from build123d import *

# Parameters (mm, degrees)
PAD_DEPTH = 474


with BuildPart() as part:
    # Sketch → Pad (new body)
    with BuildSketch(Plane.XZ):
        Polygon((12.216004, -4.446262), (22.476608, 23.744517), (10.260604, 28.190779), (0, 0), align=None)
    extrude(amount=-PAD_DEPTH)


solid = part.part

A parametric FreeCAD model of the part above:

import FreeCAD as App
import Part
import Sketcher

V = App.Vector
Q = App.Units.Quantity

doc = App.newDocument("Part")
body = doc.addObject("PartDesign::Body", "Body")

sketch1 = doc.addObject("Sketcher::SketchObject", "Sketch")
body.addObject(sketch1)
sketch1.AttachmentSupport = (doc.XZ_Plane, [""])
sketch1.MapMode = "FlatFace"
sketch1.addGeometry(Part.LineSegment(V(12, -4, 0), V(22, 24, 0)), False)
sketch1.addGeometry(Part.LineSegment(V(22, 24, 0), V(10, 28, 0)), False)
sketch1.addGeometry(Part.LineSegment(V(10, 28, 0), V(0, 0, 0)), False)
sketch1.addGeometry(Part.LineSegment(V(0, 0, 0), V(12, -4, 0)), False)
sketch1.addConstraint(Sketcher.Constraint("Coincident", 0, 2, 1, 1))
sketch1.addConstraint(Sketcher.Constraint("Coincident", 1, 2, 2, 1))
sketch1.addConstraint(Sketcher.Constraint("Coincident", 2, 2, 3, 1))
sketch1.addConstraint(Sketcher.Constraint("Coincident", 3, 2, 0, 1))
sketch1.addConstraint(Sketcher.Constraint("Coincident", 2, 2, -1, 1))
sketch1.addConstraint(Sketcher.Constraint("Perpendicular", 0, 1))
sketch1.addConstraint(Sketcher.Constraint("Perpendicular", 1, 2))
sketch1.addConstraint(Sketcher.Constraint("Perpendicular", 2, 3))
sketch1.addConstraint(Sketcher.Constraint("Angle", 0, Q("70.000001 deg")))
sketch1.addConstraint(Sketcher.Constraint("Distance", 0, Q("30 mm")))
sketch1.addConstraint(Sketcher.Constraint("Distance", 1, Q("13 mm")))
pad1 = doc.addObject("PartDesign::Pad", "Pad")
body.addObject(pad1)
pad1.Profile = sketch1
pad1.Length = 474
pad1.Reversed = True

doc.recompute()
